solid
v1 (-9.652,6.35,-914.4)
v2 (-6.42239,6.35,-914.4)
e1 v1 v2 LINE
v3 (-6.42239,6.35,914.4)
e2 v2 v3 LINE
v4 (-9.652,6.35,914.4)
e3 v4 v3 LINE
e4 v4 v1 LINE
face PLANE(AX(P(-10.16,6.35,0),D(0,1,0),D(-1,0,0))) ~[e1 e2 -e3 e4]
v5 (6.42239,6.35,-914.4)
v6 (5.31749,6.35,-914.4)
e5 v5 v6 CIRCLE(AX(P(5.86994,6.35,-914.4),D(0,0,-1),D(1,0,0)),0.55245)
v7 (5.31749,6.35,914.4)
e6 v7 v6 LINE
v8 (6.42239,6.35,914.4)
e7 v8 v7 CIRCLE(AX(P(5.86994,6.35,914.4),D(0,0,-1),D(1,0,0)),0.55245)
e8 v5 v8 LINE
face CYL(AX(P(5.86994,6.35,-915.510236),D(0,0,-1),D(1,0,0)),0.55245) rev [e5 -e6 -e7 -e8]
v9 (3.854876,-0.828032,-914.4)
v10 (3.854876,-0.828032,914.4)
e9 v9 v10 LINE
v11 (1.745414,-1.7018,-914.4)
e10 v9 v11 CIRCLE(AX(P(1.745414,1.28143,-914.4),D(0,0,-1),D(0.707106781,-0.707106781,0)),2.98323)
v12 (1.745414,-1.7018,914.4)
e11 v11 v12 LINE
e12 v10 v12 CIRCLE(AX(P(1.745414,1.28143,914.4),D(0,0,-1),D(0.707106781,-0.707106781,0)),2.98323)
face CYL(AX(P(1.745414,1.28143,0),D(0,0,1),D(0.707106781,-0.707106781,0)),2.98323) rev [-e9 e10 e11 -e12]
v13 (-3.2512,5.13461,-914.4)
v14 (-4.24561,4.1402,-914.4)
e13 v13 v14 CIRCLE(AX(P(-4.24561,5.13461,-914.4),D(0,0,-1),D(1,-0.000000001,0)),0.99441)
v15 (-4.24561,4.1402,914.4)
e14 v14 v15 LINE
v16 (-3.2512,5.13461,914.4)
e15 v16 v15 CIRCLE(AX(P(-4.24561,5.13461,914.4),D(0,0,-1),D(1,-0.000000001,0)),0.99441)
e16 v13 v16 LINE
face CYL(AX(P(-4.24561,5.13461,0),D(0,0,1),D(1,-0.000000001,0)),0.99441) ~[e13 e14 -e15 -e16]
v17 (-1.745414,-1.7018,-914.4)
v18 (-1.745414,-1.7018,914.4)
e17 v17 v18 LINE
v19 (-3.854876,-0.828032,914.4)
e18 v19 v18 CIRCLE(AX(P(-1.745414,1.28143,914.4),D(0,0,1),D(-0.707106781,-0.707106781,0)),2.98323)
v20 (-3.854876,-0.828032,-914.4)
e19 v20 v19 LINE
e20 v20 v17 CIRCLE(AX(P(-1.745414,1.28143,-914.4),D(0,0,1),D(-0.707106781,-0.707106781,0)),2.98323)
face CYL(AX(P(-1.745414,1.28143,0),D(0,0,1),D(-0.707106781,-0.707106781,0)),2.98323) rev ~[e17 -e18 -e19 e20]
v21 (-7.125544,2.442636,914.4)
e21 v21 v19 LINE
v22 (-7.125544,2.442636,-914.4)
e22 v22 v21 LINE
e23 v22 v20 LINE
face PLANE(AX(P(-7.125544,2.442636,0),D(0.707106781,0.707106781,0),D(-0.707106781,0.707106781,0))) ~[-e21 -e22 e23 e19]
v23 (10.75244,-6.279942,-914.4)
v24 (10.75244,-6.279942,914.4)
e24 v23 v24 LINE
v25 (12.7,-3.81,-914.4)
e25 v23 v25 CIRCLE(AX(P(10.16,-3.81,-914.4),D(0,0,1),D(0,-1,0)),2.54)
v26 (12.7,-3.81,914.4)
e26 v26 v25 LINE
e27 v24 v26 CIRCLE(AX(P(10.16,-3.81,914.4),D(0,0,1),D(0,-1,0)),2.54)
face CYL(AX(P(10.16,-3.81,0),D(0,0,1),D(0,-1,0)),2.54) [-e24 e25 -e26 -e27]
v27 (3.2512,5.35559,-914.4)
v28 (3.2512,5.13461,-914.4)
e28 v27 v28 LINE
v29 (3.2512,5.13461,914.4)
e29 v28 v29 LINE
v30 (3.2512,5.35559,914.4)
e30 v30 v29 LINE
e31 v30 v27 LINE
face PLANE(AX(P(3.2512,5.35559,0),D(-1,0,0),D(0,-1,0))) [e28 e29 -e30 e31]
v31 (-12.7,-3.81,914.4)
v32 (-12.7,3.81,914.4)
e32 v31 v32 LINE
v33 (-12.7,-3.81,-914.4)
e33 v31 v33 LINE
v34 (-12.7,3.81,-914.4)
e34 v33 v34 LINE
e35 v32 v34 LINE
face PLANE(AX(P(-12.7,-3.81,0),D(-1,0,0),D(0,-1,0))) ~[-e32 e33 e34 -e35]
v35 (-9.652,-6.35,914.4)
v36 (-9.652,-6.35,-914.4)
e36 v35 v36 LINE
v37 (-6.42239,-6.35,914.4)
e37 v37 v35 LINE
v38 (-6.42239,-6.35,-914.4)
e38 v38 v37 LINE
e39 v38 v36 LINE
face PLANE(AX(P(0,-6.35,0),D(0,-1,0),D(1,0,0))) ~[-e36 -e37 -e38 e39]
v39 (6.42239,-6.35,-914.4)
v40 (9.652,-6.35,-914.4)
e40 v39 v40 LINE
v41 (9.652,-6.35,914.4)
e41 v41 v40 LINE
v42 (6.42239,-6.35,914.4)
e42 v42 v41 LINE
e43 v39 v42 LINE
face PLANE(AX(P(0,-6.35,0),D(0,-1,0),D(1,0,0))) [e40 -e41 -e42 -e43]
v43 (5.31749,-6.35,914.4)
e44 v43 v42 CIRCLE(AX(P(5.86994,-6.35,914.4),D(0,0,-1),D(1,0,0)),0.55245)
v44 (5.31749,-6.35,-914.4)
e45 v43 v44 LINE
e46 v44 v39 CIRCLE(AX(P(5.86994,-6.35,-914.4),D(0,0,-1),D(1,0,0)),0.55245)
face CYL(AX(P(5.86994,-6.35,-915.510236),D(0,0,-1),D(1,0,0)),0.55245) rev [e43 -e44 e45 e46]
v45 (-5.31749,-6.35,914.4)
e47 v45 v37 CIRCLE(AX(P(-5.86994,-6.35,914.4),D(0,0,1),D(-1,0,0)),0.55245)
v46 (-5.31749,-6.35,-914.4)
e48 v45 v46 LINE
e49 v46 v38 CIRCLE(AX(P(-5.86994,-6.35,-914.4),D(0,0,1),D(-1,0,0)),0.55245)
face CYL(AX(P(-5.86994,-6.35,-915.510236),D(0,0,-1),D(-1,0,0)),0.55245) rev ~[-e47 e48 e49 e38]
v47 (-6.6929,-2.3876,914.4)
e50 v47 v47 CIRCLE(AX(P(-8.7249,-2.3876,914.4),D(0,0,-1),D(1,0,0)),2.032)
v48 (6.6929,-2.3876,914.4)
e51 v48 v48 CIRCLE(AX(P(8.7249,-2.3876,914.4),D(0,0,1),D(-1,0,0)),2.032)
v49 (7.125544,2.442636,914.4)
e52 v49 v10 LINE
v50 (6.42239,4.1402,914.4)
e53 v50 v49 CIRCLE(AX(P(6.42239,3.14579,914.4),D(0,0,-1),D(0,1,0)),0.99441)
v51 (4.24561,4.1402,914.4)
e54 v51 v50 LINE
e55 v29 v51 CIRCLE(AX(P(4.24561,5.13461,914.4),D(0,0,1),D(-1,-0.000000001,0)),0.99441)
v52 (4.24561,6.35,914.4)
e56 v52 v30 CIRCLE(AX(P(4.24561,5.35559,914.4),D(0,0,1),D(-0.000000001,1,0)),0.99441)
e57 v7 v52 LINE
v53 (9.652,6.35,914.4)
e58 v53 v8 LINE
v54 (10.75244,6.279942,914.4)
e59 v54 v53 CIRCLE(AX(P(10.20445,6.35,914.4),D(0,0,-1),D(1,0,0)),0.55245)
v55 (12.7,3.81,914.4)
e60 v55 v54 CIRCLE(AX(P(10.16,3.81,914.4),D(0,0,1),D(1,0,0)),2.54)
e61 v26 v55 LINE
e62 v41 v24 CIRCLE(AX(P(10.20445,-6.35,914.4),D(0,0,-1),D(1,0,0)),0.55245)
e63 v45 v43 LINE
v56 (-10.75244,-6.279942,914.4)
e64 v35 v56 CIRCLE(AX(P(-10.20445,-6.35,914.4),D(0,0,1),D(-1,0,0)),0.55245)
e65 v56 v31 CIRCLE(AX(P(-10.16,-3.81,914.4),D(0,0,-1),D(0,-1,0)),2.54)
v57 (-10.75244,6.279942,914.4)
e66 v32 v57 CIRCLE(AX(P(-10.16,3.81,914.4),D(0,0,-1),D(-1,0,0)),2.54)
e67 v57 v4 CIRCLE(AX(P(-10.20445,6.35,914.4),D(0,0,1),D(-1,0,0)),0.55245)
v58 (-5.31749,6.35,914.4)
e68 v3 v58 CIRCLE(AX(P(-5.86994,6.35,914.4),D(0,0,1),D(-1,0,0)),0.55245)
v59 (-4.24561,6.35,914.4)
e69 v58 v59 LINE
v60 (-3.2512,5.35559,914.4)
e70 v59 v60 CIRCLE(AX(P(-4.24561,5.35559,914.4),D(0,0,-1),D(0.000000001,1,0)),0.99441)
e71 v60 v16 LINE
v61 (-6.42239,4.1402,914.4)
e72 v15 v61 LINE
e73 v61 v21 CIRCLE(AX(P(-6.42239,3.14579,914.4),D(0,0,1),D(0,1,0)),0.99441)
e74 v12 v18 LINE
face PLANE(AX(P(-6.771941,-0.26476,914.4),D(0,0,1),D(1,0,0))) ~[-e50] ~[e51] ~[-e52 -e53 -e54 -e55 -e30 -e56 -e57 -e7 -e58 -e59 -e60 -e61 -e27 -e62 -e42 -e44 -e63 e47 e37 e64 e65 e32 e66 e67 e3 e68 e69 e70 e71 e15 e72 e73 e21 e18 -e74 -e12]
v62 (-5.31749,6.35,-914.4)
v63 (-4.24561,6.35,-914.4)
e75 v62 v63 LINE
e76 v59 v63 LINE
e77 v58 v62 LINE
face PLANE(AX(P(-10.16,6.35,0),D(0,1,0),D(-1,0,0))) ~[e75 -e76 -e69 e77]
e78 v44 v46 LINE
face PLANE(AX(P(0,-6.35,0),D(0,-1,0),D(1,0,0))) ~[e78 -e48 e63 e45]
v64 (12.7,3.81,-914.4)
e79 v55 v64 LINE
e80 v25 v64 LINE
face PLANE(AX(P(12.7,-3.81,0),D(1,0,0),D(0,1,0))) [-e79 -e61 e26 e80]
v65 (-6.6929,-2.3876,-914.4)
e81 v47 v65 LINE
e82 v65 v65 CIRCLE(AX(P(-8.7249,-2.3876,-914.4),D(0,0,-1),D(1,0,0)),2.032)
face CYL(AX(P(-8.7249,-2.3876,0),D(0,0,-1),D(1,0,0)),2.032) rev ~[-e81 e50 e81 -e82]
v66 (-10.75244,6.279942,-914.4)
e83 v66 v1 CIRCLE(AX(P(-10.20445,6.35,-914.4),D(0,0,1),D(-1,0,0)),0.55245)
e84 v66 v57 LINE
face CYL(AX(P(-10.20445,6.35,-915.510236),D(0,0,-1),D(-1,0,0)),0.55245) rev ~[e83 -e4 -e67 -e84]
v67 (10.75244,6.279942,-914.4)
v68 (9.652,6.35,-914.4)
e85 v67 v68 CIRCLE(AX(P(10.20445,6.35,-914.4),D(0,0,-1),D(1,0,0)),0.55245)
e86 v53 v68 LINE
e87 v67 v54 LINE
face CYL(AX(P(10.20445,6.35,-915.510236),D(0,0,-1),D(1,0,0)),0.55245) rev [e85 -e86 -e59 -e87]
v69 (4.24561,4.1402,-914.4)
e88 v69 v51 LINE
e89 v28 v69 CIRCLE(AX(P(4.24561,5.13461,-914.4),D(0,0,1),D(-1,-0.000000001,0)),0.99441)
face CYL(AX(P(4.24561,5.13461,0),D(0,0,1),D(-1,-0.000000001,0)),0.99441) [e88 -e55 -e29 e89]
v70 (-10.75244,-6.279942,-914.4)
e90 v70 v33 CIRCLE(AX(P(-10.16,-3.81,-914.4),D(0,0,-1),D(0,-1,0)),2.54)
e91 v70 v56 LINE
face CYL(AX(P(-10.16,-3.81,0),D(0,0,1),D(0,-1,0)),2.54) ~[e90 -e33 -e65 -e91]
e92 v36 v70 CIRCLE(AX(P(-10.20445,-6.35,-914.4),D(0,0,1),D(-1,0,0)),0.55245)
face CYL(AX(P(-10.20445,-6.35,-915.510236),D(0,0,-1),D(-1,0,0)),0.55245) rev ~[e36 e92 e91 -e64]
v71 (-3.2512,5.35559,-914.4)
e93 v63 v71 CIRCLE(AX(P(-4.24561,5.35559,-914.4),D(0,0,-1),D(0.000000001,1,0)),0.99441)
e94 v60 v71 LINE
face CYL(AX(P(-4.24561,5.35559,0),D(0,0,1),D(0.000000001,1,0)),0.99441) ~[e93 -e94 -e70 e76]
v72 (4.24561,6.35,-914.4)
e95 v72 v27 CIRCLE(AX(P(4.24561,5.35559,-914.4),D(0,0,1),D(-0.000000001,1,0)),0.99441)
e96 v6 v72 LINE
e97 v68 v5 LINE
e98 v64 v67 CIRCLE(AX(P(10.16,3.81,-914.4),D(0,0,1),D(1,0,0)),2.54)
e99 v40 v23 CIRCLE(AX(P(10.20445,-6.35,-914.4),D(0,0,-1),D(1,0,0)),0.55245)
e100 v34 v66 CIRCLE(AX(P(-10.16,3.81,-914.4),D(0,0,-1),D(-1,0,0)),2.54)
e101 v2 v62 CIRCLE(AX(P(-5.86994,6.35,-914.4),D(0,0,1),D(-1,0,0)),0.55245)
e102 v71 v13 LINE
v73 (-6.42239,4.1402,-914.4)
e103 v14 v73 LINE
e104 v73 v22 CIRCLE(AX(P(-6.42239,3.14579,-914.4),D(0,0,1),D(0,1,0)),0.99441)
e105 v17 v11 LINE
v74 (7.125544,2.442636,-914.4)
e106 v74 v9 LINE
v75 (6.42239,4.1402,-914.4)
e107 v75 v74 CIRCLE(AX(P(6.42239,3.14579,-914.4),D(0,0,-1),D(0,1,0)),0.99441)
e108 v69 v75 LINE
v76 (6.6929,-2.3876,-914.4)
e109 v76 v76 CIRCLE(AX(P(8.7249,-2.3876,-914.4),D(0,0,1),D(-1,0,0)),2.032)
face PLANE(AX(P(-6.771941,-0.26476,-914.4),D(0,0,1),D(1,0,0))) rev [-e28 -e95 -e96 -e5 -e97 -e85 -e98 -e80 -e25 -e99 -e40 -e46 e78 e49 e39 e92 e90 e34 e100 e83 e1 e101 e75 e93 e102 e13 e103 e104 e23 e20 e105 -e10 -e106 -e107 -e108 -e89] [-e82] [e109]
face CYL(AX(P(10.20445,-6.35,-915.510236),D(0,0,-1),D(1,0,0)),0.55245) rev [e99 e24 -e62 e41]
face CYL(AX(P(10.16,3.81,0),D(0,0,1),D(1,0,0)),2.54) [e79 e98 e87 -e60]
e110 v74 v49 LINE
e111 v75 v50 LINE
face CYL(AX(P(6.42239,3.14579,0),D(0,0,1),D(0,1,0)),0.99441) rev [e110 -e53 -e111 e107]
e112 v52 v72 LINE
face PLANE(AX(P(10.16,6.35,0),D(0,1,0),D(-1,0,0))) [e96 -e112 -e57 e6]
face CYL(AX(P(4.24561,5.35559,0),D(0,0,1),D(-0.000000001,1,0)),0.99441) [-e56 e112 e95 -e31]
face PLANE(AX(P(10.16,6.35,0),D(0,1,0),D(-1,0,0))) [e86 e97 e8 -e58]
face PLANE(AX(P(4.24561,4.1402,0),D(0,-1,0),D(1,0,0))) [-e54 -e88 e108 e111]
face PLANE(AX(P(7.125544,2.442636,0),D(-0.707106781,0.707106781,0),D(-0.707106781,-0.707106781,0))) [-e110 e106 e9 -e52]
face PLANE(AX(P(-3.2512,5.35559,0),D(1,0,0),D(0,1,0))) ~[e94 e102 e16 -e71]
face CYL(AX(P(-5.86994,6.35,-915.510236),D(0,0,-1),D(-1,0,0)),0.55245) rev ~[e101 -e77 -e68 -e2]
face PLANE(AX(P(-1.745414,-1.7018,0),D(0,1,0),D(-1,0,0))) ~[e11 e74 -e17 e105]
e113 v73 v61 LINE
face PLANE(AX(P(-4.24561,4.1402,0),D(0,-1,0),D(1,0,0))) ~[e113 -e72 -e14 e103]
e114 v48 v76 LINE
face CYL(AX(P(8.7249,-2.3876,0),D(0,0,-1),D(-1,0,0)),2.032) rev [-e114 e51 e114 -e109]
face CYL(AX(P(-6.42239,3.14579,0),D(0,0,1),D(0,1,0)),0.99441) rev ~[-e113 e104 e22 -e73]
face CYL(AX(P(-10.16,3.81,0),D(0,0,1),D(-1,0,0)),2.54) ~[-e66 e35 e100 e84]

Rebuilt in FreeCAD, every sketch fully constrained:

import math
import FreeCAD as App
import Part
import Sketcher

V = App.Vector
Q = App.Units.Quantity

doc = App.newDocument("Part")
params = doc.addObject("Spreadsheet::Sheet", "Params")
for row, (alias, value) in enumerate([
    ("sketch1_radius", "0.1 in"),
    ("sketch1_diameter", "0.16 in"),
    ("sketch1_width", "0.4 in"),
    ("sketch1_height", "0.3 in"),
    ("sketch1_height2", "0.183 in"),
    ("pad1_length", "72 in"),
], start=1):
    params.set(f"A{row}", alias)
    params.set(f"B{row}", "=" + value)
    params.setAlias(f"B{row}", alias)

body = doc.addObject("PartDesign::Body", "Body")

sketch1 = doc.addObject("Sketcher::SketchObject", "Sketch")
body.addObject(sketch1)
sketch1.AttachmentSupport = (doc.XY_Plane, [""])
sketch1.MapMode = "FlatFace"
sketch1.addGeometry([
    Part.LineSegment(V(3.25, 5.36, 0), V(3.25, 5.13, 0)),
    Part.ArcOfCircle(Part.Circle(V(4.25, 5.13, 0), V(0, 0, 1), 0.99), math.radians(-180), math.radians(-90)),
    Part.LineSegment(V(4.25, 4.14, 0), V(6.42, 4.14, 0)),
    Part.ArcOfCircle(Part.Circle(V(6.42, 3.15, 0), V(0, 0, 1), 0.99), math.radians(-45), math.radians(90)),
    Part.LineSegment(V(7.13, 2.44, 0), V(3.85, -0.83, 0)),
    Part.ArcOfCircle(Part.Circle(V(1.75, 1.28, 0), V(0, 0, 1), 2.98), math.radians(-90), math.radians(-45)),
    Part.LineSegment(V(1.75, -1.7, 0), V(0, -1.7, 0)),
    Part.LineSegment(V(0, -1.7, 0), V(0, -6.35, 0)),
    Part.LineSegment(V(0, -6.35, 0), V(10.16, -6.35, 0)),
    Part.ArcOfCircle(Part.Circle(V(10.16, -3.81, 0), V(0, 0, 1), 2.54), math.radians(-90), math.radians(0)),
    Part.LineSegment(V(12.7, -3.81, 0), V(12.7, 3.81, 0)),
    Part.ArcOfCircle(Part.Circle(V(10.16, 3.81, 0), V(0, 0, 1), 2.54), math.radians(0), math.radians(90)),
    Part.LineSegment(V(10.16, 6.35, 0), V(4.25, 6.35, 0)),
    Part.ArcOfCircle(Part.Circle(V(4.25, 5.36, 0), V(0, 0, 1), 0.99), math.radians(90), math.radians(180)),
    Part.Circle(V(8.72, -2.39, 0), V(0, 0, 1), 2.03),
], False)
sketch1.addConstraint([
    Sketcher.Constraint("Tangent", 0, 2, 1, 1),
    Sketcher.Constraint("Tangent", 1, 2, 2, 1),
    Sketcher.Constraint("Tangent", 2, 2, 3, 2),
    Sketcher.Constraint("Tangent", 3, 1, 4, 1),
    Sketcher.Constraint("Tangent", 4, 2, 5, 2),
    Sketcher.Constraint("Tangent", 5, 1, 6, 1),
    Sketcher.Constraint("Coincident", 6, 2, 7, 1),
    Sketcher.Constraint("Coincident", 7, 2, 8, 1),
    Sketcher.Constraint("Tangent", 8, 2, 9, 1),
    Sketcher.Constraint("Tangent", 9, 2, 10, 1),
    Sketcher.Constraint("Tangent", 10, 2, 11, 1),
    Sketcher.Constraint("Tangent", 11, 2, 12, 1),
    Sketcher.Constraint("Tangent", 12, 2, 13, 1),
    Sketcher.Constraint("Tangent", 13, 2, 0, 1),
    Sketcher.Constraint("Vertical", 0),
    Sketcher.Constraint("Horizontal", 2),
    Sketcher.Constraint("Horizontal", 6),
    Sketcher.Constraint("Vertical", 7),
    Sketcher.Constraint("Horizontal", 8),
    Sketcher.Constraint("Vertical", 10),
    Sketcher.Constraint("Horizontal", 12),
    Sketcher.Constraint("Equal", 1, 3),
    Sketcher.Constraint("Equal", 9, 11),
    Sketcher.Constraint("Equal", 3, 13),
    Sketcher.Constraint("PointOnObject", 6, 2, -2),
    Sketcher.Constraint("Radius", 9, Q("0.1 in")),
    Sketcher.Constraint("Diameter", 14, Q("0.16 in")),
    Sketcher.Constraint("DistanceX", 8, 1, 8, 2, Q("0.4 in")),
    Sketcher.Constraint("DistanceY", 10, 1, 10, 2, Q("0.3 in")),
    Sketcher.Constraint("Angle", 4, Q("-135 deg")),
    Sketcher.Constraint("DistanceY", 7, 2, 7, 1, Q("0.183 in")),
    Sketcher.Constraint("DistanceY", 9, 3, -1, 1, Q("0.15 in")),
    Sketcher.Constraint("DistanceY", 5, 1, 1, 2, Q("0.23 in")),
    Sketcher.Constraint("DistanceX", 2, 1, 2, 2, Q("0.0857 in")),
    Sketcher.Constraint("DistanceY", 0, 2, 0, 1, Q("0.0087 in")),
    Sketcher.Constraint("DistanceY", 14, 3, -1, 1, Q("0.094 in")),
    Sketcher.Constraint("DistanceX", -1, 1, 0, 2, Q("0.128 in")),
    Sketcher.Constraint("Radius", 5, 2.98323),
    Sketcher.Constraint("DistanceX", -1, 1, 14, 3, Q("0.3435 in")),
])
sketch1.setExpression("Constraints[25]", "Params.sketch1_radius")
sketch1.setExpression("Constraints[26]", "Params.sketch1_diameter")
sketch1.setExpression("Constraints[27]", "Params.sketch1_width")
sketch1.setExpression("Constraints[28]", "Params.sketch1_height")
sketch1.setExpression("Constraints[30]", "Params.sketch1_height2")
pad1 = doc.addObject("PartDesign::Pad", "Pad")
body.addObject(pad1)
pad1.Profile = sketch1
pad1.setExpression("Length", "Params.pad1_length")
pad1.Midplane = True

sketch2 = doc.addObject("Sketcher::SketchObject", "Sketch001")
body.addObject(sketch2)
sketch2.AttachmentSupport = (doc.XY_Plane, [""])
sketch2.MapMode = "FlatFace"
sketch2.addGeometry([
    Part.Circle(V(5.9, 6.3, 0), V(0, 0, 1), 0.6),
    Part.Circle(V(10.2, 6.3, 0), V(0, 0, 1), 0.6),
    Part.Circle(V(5.9, -6.3, 0), V(0, 0, 1), 0.6),
    Part.Circle(V(10.2, -6.3, 0), V(0, 0, 1), 0.6),
], False)
sketch2.addConstraint([
    Sketcher.Constraint("Equal", 0, 1),
    Sketcher.Constraint("Equal", 1, 2),
    Sketcher.Constraint("Equal", 2, 3),
    Sketcher.Constraint("Symmetric", 0, 3, 2, 3, -1),
    Sketcher.Constraint("Symmetric", 1, 3, 3, 3, -1),
    Sketcher.Constraint("Horizontal", 0, 3, 1, 3),
    Sketcher.Constraint("Diameter", 0, Q("0.0435 in")),
    Sketcher.Constraint("DistanceY", 2, 3, 0, 3, Q("0.5 in")),
    Sketcher.Constraint("DistanceX", -1, 1, 0, 3, Q("0.2311 in")),
    Sketcher.Constraint("DistanceX", -1, 1, 1, 3, 10.20445),
])
pocket1 = doc.addObject("PartDesign::Pocket", "Pocket")
body.addObject(pocket1)
pocket1.Profile = sketch2
pocket1.Type = "ThroughAll"
pocket1.Midplane = True
body2 = doc.addObject("PartDesign::Body", "Body001")
doc.recompute()

body2.BaseFeature = body
doc.recompute()

mirroring = doc.addObject("Part::Mirroring", "Mirroring")
mirroring.Source = body
mirroring.Base = V(0, 0, 0)
mirroring.Normal = V(1, 0, 0)
body3 = doc.addObject("PartDesign::Body", "Body002")
body3.BaseFeature = mirroring
boolean = doc.addObject("PartDesign::Boolean", "Boolean")
body2.addObject(boolean)
boolean.Type = "Fuse"
boolean.addObjects([body3])
doc.recompute()
mirroring.Visibility = False

doc.recompute()
